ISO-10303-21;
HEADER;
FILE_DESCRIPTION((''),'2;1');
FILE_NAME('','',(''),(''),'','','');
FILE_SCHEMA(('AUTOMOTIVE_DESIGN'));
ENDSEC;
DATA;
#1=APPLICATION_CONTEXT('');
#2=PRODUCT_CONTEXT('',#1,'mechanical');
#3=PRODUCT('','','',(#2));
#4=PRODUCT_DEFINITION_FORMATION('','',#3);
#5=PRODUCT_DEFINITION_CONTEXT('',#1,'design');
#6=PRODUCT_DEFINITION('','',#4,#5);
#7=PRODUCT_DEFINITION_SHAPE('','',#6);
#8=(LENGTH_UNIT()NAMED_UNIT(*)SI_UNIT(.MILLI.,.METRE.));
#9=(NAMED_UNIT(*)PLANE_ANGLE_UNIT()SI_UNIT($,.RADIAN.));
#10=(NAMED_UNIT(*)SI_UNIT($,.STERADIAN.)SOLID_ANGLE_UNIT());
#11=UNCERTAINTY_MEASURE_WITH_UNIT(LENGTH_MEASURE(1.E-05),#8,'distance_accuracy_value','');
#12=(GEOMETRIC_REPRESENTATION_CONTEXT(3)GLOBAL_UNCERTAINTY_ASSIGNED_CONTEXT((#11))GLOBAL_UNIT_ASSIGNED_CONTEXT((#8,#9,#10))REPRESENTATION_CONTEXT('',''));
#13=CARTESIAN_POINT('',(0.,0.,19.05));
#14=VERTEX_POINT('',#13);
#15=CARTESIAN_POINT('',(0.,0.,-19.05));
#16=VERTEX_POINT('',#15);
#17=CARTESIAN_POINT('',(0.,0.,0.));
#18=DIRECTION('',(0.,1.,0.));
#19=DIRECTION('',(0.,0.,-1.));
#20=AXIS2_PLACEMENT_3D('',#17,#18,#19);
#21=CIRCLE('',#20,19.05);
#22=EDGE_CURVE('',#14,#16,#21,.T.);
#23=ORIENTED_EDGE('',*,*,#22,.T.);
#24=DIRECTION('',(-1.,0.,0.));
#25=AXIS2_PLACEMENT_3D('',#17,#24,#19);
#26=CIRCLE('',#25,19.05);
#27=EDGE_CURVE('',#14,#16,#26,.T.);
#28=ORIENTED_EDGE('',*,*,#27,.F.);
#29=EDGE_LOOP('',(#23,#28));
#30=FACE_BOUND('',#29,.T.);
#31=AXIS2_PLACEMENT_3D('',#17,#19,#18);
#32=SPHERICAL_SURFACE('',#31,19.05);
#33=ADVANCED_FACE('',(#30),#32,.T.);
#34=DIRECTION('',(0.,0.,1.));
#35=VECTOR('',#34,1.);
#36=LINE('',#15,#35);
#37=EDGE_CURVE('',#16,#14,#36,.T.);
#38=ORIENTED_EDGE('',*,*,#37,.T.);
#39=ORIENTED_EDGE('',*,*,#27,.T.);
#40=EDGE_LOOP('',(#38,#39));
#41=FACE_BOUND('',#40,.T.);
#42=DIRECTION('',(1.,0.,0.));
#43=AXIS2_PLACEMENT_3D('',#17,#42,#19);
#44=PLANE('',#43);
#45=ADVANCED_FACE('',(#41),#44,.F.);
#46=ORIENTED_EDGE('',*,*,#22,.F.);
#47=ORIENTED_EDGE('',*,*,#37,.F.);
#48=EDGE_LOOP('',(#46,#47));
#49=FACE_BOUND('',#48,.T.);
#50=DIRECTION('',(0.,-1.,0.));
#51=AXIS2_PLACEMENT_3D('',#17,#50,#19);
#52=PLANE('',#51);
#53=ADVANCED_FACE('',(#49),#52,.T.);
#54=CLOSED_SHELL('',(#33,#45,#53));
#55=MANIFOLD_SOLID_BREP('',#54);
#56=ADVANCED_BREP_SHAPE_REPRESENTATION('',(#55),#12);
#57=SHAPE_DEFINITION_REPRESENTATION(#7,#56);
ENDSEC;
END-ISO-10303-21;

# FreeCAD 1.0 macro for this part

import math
import FreeCAD as App
import Part
import Sketcher
Q = App.Units.Quantity

doc = App.newDocument("Part")
body = doc.addObject("PartDesign::Body", "Body")

# Sketch on XZ plane
sketch1 = body.newObject("Sketcher::SketchObject", "Sketch")
sketch1.AttachmentSupport = (doc.getObject("XZ_Plane"), [""])
sketch1.MapMode = "FlatFace"
sketch1.addGeometry(Part.LineSegment(App.Vector(0, -19, 0), App.Vector(0, 19, 0)), False)
sketch1.addGeometry(Part.ArcOfCircle(Part.Circle(App.Vector(0, 0, 0), App.Vector(0, 0, 1), 19), math.radians(-90), math.radians(90)), False)
sketch1.addConstraint(Sketcher.Constraint("Coincident", 0, 1, 1, 1))
sketch1.addConstraint(Sketcher.Constraint("Coincident", 1, 2, 0, 2))
sketch1.addConstraint(Sketcher.Constraint("Vertical", 0))
sketch1.addConstraint(Sketcher.Constraint("Coincident", 1, 3, -1, 1))
sketch1.addConstraint(Sketcher.Constraint("PointOnObject", 0, 1, -2))
sketch1.addConstraint(Sketcher.Constraint("Radius", 1, Q("0.75 in")))
revolution = body.newObject("PartDesign::Revolution", "Revolution")
revolution.Profile = sketch1
revolution.ReferenceAxis = (sketch1, ["V_Axis"])
revolution.Angle = 90

doc.recompute()
